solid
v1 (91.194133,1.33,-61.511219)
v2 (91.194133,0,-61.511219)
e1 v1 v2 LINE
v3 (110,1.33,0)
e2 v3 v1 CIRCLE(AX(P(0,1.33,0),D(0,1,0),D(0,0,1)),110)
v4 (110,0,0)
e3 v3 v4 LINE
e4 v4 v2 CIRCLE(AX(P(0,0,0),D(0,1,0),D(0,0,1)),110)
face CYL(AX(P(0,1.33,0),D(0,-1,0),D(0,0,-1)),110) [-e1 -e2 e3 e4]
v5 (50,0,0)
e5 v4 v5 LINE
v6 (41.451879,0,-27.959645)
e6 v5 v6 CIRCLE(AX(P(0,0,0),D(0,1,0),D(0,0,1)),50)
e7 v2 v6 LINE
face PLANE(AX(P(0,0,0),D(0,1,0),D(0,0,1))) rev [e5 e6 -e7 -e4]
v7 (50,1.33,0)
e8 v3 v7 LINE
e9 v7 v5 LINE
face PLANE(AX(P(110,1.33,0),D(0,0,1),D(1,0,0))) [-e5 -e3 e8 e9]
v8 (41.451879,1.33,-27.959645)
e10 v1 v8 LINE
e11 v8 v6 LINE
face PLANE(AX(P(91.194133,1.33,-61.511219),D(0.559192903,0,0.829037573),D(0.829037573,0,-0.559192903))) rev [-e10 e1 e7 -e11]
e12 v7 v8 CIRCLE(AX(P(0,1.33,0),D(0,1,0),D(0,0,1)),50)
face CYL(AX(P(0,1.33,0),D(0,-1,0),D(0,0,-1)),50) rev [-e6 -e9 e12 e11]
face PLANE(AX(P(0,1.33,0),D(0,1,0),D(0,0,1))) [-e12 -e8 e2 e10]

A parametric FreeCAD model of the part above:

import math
import FreeCAD as App
import Part
import Sketcher
from FreeCAD import Vector
Q = App.Units.Quantity

doc = App.newDocument("Part")
body = doc.addObject("PartDesign::Body", "Body")

# Sketch on XZ plane
sketch1 = doc.addObject("Sketcher::SketchObject", "Sketch")
body.addObject(sketch1)
sketch1.AttachmentSupport = (doc.XZ_Plane, [""])
sketch1.MapMode = "FlatFace"
sketch1.addGeometry([
    Part.LineSegment(Vector(91, -62, 0), Vector(41, -28, 0)),
    Part.ArcOfCircle(Part.Circle(Vector(0, 0, 0), Vector(0, 0, 1), 50), math.radians(-34), math.radians(0)),
    Part.LineSegment(Vector(50, 0, 0), Vector(110, 0, 0)),
    Part.ArcOfCircle(Part.Circle(Vector(0, 0, 0), Vector(0, 0, 1), 110), math.radians(-34), math.radians(0)),
], False)
sketch1.addConstraint([
    Sketcher.Constraint("Coincident", 0, 2, 1, 1),
    Sketcher.Constraint("Coincident", 1, 2, 2, 1),
    Sketcher.Constraint("Coincident", 2, 2, 3, 2),
    Sketcher.Constraint("Coincident", 3, 1, 0, 1),
    Sketcher.Constraint("Horizontal", 2),
    Sketcher.Constraint("Coincident", 1, 3, -1, 1),
    Sketcher.Constraint("Coincident", 3, 3, -1, 1),
    Sketcher.Constraint("PointOnObject", 1, 2, -1),
    Sketcher.Constraint("Radius", 1, 50.0),
    Sketcher.Constraint("Radius", 3, 110.0),
    Sketcher.Constraint("Angle", 0, Q("146 deg")),
    Sketcher.Constraint("DistanceX", -1, 1, 0, 2, 41.451879),
])
pad1 = doc.addObject("PartDesign::Pad", "Pad")
body.addObject(pad1)
pad1.Profile = sketch1
pad1.Length = 1.33
pad1.Reversed = True

doc.recompute()
